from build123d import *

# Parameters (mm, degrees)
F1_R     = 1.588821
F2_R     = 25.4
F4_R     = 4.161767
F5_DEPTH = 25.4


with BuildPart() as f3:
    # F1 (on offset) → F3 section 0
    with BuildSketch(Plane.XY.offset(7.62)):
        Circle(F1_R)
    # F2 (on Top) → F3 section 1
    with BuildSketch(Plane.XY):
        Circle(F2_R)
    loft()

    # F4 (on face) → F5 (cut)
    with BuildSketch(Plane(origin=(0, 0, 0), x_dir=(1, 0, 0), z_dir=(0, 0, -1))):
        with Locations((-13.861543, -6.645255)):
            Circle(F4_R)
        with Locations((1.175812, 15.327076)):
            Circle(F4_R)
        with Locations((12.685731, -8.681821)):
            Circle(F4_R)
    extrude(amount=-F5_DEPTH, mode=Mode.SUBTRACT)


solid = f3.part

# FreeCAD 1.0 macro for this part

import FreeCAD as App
import Part
import Sketcher
Q = App.Units.Quantity

doc = App.newDocument("Part")
body = doc.addObject("PartDesign::Body", "Body")

sketch1 = body.newObject("Sketcher::SketchObject", "Sketch")
sketch1.AttachmentSupport = (doc.getObject("XY_Plane"), [""])
sketch1.MapMode = "FlatFace"
sketch1.AttachmentOffset = App.Placement(App.Vector(0, 0, 0.3 * 25.4), App.Rotation())
sketch1.addGeometry(Part.Circle(App.Vector(0, 0, 0), App.Vector(0, 0, 1), 1.588821), False)
sketch1.addConstraint(Sketcher.Constraint("Coincident", 0, 3, -1, 1))
sketch1.addConstraint(Sketcher.Constraint("Diameter", 0, Q("3.177642 mm")))

sketch2 = body.newObject("Sketcher::SketchObject", "Sketch001")
sketch2.AttachmentSupport = (doc.getObject("XY_Plane"), [""])
sketch2.MapMode = "FlatFace"
sketch2.addGeometry(Part.Circle(App.Vector(0, 0, 0), App.Vector(0, 0, 1), 25.4), False)
sketch2.addConstraint(Sketcher.Constraint("Coincident", 0, 3, -1, 1))
sketch2.addConstraint(Sketcher.Constraint("Diameter", 0, Q("2 in")))

additiveloft = body.newObject("PartDesign::AdditiveLoft", "AdditiveLoft")
additiveloft.Profile = sketch1
additiveloft.Sections = [sketch2]

sketch3 = body.newObject("Sketcher::SketchObject", "Sketch002")
sketch3.AttachmentSupport = (doc.getObject("XY_Plane"), [""])
sketch3.MapMode = "FlatFace"
sketch3.addGeometry(Part.Circle(App.Vector(-13.861543, 6.645255, 0), App.Vector(0, 0, 1), 4.161767), False)
sketch3.addGeometry(Part.Circle(App.Vector(1.175812, -15.327076, 0), App.Vector(0, 0, 1), 4.161767), False)
sketch3.addGeometry(Part.Circle(App.Vector(12.685731, 8.681821, 0), App.Vector(0, 0, 1), 4.161767), False)
sketch3.addConstraint(Sketcher.Constraint("Equal", 0, 1))
sketch3.addConstraint(Sketcher.Constraint("Equal", 1, 2))
sketch3.addConstraint(Sketcher.Constraint("Diameter", 0, Q("8.323534 mm")))
sketch3.addConstraint(Sketcher.Constraint("DistanceX", -1, 1, 2, 3, Q("12.685731 mm")))
sketch3.addConstraint(Sketcher.Constraint("DistanceY", -1, 1, 2, 3, Q("8.681821 mm")))
sketch3.addConstraint(Sketcher.Constraint("DistanceY", 1, 3, 0, 3, Q("21.972331 mm")))
sketch3.addConstraint(Sketcher.Constraint("DistanceX", 1, 3, 2, 3, Q("11.509919 mm")))
sketch3.addConstraint(Sketcher.Constraint("DistanceX", 0, 3, -1, 1, Q("13.861543 mm")))
sketch3.addConstraint(Sketcher.Constraint("DistanceY", -1, 1, 0, 3, Q("6.645255 mm")))
pocket1 = body.newObject("PartDesign::Pocket", "Pocket")
pocket1.Profile = sketch3
pocket1.Length = Q("1 in")
pocket1.Reversed = True

doc.recompute()
